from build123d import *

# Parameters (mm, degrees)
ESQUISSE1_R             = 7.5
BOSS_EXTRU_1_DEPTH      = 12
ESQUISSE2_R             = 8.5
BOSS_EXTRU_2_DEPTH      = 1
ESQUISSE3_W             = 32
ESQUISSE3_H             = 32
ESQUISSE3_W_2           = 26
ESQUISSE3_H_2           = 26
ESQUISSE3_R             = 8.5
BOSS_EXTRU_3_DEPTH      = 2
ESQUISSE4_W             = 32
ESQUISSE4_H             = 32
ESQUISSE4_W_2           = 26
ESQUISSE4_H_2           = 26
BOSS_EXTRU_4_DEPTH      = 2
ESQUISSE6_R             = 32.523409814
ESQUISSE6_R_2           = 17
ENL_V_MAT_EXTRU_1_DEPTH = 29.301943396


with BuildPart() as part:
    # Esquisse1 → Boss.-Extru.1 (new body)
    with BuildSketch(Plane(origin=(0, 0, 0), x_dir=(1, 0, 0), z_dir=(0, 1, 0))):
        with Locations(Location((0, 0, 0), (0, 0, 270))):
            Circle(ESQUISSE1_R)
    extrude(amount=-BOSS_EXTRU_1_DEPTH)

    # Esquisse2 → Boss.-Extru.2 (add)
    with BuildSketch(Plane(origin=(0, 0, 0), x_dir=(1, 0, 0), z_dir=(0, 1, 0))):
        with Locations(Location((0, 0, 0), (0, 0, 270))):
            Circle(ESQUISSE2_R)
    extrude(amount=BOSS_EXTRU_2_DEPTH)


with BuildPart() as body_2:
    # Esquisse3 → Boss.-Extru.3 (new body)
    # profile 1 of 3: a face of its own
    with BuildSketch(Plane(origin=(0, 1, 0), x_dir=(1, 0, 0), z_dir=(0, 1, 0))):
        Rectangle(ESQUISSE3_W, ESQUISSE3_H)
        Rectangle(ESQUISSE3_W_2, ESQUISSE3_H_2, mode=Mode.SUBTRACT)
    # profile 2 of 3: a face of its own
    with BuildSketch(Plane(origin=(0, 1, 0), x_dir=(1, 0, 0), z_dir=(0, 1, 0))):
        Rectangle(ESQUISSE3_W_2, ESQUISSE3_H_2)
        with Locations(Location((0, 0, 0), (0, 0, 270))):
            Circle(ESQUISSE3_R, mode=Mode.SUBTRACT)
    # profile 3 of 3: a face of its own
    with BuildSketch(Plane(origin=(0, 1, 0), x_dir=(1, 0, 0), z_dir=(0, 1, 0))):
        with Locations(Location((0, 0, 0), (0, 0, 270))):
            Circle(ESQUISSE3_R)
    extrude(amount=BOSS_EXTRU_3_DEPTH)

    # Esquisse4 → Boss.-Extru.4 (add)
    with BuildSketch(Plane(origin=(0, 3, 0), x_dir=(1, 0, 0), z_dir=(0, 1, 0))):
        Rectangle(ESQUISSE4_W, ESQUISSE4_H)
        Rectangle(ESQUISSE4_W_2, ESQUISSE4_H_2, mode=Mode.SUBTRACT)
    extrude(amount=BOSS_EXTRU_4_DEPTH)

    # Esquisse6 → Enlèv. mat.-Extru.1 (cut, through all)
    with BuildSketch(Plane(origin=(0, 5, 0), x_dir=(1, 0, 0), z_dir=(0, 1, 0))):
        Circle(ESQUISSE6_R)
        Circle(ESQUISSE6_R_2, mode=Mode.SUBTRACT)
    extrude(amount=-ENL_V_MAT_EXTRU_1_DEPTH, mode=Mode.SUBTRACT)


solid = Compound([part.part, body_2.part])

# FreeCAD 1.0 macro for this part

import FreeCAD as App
import Part
import Sketcher

V = App.Vector
Q = App.Units.Quantity

doc = App.newDocument("Part")
params = doc.addObject("Spreadsheet::Sheet", "Params")
for row, (alias, value) in enumerate([
    ("sketch1_diameter", "15 mm"),
    ("pad1_length", "12 mm"),
    ("sketch2_diameter", "17 mm"),
    ("pad2_length", "1 mm"),
    ("sketch3_width", "32 mm"),
    ("pad3_length", "2 mm"),
    ("sketch4_width", "32 mm"),
    ("sketch4_width2", "26 mm"),
    ("pad4_length", "2 mm"),
    ("sketch5_diameter", "34 mm"),
], start=1):
    params.set(f"A{row}", alias)
    params.set(f"B{row}", "=" + value)
    params.setAlias(f"B{row}", alias)

body = doc.addObject("PartDesign::Body", "Body")

# Sketch on XZ plane
sketch1 = body.newObject("Sketcher::SketchObject", "Sketch")
sketch1.AttachmentSupport = (doc.getObject("XZ_Plane"), [""])
sketch1.MapMode = "FlatFace"
sketch1.addGeometry(Part.Circle(V(0, 0, 0), V(0, 0, 1), 7.5), False)
sketch1.addConstraint([
    Sketcher.Constraint("Coincident", 0, 3, -1, 1),
    Sketcher.Constraint("Diameter", 0, Q("15 mm")),
])
sketch1.setExpression("Constraints[1]", "Params.sketch1_diameter")
pad1 = body.newObject("PartDesign::Pad", "Pad")
pad1.Profile = sketch1
pad1.setExpression("Length", "Params.pad1_length")

# Sketch on XZ plane
sketch2 = body.newObject("Sketcher::SketchObject", "Sketch001")
sketch2.AttachmentSupport = (doc.getObject("XZ_Plane"), [""])
sketch2.MapMode = "FlatFace"
sketch2.addGeometry(Part.Circle(V(0, 0, 0), V(0, 0, 1), 8.5), False)
sketch2.addConstraint([
    Sketcher.Constraint("Coincident", 0, 3, -1, 1),
    Sketcher.Constraint("Diameter", 0, Q("17 mm")),
])
sketch2.setExpression("Constraints[1]", "Params.sketch2_diameter")
pad2 = body.newObject("PartDesign::Pad", "Pad001")
pad2.Profile = sketch2
pad2.setExpression("Length", "Params.pad2_length")
pad2.Reversed = True
body2 = doc.addObject("PartDesign::Body", "Body001")

# Sketch on XZ plane
sketch3 = body2.newObject("Sketcher::SketchObject", "Sketch002")
sketch3.AttachmentSupport = (doc.getObject("XZ_Plane001"), [""])
sketch3.MapMode = "FlatFace"
sketch3.AttachmentOffset = App.Placement(V(0, 0, -1), App.Rotation())
sketch3.addGeometry([
    Part.LineSegment(V(-16, -16, 0), V(-16, 16, 0)),
    Part.LineSegment(V(-16, 16, 0), V(16, 16, 0)),
    Part.LineSegment(V(16, 16, 0), V(16, -16, 0)),
    Part.LineSegment(V(16, -16, 0), V(-16, -16, 0)),
], False)
sketch3.addConstraint([
    Sketcher.Constraint("Coincident", 0, 2, 1, 1),
    Sketcher.Constraint("Coincident", 1, 2, 2, 1),
    Sketcher.Constraint("Coincident", 2, 2, 3, 1),
    Sketcher.Constraint("Coincident", 3, 2, 0, 1),
    Sketcher.Constraint("Vertical", 0),
    Sketcher.Constraint("Horizontal", 1),
    Sketcher.Constraint("Vertical", 2),
    Sketcher.Constraint("Horizontal", 3),
    Sketcher.Constraint("Symmetric", 0, 2, 2, 2, -1, 1),
    Sketcher.Constraint("Equal", 3, 0),
    Sketcher.Constraint("DistanceX", 1, 1, 1, 2, Q("32 mm")),
])
sketch3.setExpression("Constraints[10]", "Params.sketch3_width")
pad3 = body2.newObject("PartDesign::Pad", "Pad002")
pad3.Profile = sketch3
pad3.setExpression("Length", "Params.pad3_length")
pad3.Reversed = True

# Sketch on XZ plane
sketch4 = body2.newObject("Sketcher::SketchObject", "Sketch003")
sketch4.AttachmentSupport = (doc.getObject("XZ_Plane001"), [""])
sketch4.MapMode = "FlatFace"
sketch4.AttachmentOffset = App.Placement(V(0, 0, -3), App.Rotation())
sketch4.addGeometry([
    Part.LineSegment(V(-16, -16, 0), V(-16, 16, 0)),  # 0
    Part.LineSegment(V(-16, 16, 0), V(16, 16, 0)),  # 1
    Part.LineSegment(V(16, 16, 0), V(16, -16, 0)),  # 2
    Part.LineSegment(V(16, -16, 0), V(-16, -16, 0)),  # 3
    Part.LineSegment(V(13, 13, 0), V(-13, 13, 0)),  # 4
    Part.LineSegment(V(-13, 13, 0), V(-13, -13, 0)),  # 5
    Part.LineSegment(V(-13, -13, 0), V(13, -13, 0)),  # 6
    Part.LineSegment(V(13, -13, 0), V(13, 13, 0)),  # 7
], False)
sketch4.addConstraint([
    Sketcher.Constraint("Coincident", 0, 2, 1, 1),
    Sketcher.Constraint("Coincident", 1, 2, 2, 1),
    Sketcher.Constraint("Coincident", 2, 2, 3, 1),
    Sketcher.Constraint("Coincident", 3, 2, 0, 1),
    Sketcher.Constraint("Coincident", 4, 2, 5, 1),
    Sketcher.Constraint("Coincident", 5, 2, 6, 1),
    Sketcher.Constraint("Coincident", 6, 2, 7, 1),
    Sketcher.Constraint("Coincident", 7, 2, 4, 1),
    Sketcher.Constraint("Vertical", 0),
    Sketcher.Constraint("Horizontal", 1),
    Sketcher.Constraint("Vertical", 2),
    Sketcher.Constraint("Horizontal", 3),
    Sketcher.Constraint("Horizontal", 4),
    Sketcher.Constraint("Vertical", 5),
    Sketcher.Constraint("Horizontal", 6),
    Sketcher.Constraint("Vertical", 7),
    Sketcher.Constraint("Symmetric", 0, 2, 2, 2, -1, 1),
    Sketcher.Constraint("Symmetric", 4, 2, 6, 2, -1, 1),
    Sketcher.Constraint("Equal", 3, 0),
    Sketcher.Constraint("Equal", 6, 5),
    Sketcher.Constraint("DistanceX", 1, 1, 1, 2, Q("32 mm")),
    Sketcher.Constraint("DistanceX", 4, 2, 4, 1, Q("26 mm")),
])
sketch4.setExpression("Constraints[20]", "Params.sketch4_width")
sketch4.setExpression("Constraints[21]", "Params.sketch4_width2")
pad4 = body2.newObject("PartDesign::Pad", "Pad003")
pad4.Profile = sketch4
pad4.setExpression("Length", "Params.pad4_length")
pad4.Reversed = True

# Sketch on XZ plane
sketch5 = body2.newObject("Sketcher::SketchObject", "Sketch004")
sketch5.AttachmentSupport = (doc.getObject("XZ_Plane001"), [""])
sketch5.MapMode = "FlatFace"
sketch5.AttachmentOffset = App.Placement(V(0, 0, -5), App.Rotation())
sketch5.addGeometry([
    Part.Circle(V(0, 0, 0), V(0, 0, 1), 32.52341),
    Part.Circle(V(0, 0, 0), V(0, 0, 1), 17),
], False)
sketch5.addConstraint([
    Sketcher.Constraint("Coincident", 0, 3, -1, 1),
    Sketcher.Constraint("Coincident", 1, 3, -1, 1),
    Sketcher.Constraint("Diameter", 1, Q("34 mm")),
    Sketcher.Constraint("Diameter", 0, Q("65.04682 mm")),
])
sketch5.setExpression("Constraints[2]", "Params.sketch5_diameter")
pocket1 = body2.newObject("PartDesign::Pocket", "Pocket")
pocket1.Profile = sketch5
pocket1.Type = "ThroughAll"
pocket1.Reversed = True

doc.recompute()
